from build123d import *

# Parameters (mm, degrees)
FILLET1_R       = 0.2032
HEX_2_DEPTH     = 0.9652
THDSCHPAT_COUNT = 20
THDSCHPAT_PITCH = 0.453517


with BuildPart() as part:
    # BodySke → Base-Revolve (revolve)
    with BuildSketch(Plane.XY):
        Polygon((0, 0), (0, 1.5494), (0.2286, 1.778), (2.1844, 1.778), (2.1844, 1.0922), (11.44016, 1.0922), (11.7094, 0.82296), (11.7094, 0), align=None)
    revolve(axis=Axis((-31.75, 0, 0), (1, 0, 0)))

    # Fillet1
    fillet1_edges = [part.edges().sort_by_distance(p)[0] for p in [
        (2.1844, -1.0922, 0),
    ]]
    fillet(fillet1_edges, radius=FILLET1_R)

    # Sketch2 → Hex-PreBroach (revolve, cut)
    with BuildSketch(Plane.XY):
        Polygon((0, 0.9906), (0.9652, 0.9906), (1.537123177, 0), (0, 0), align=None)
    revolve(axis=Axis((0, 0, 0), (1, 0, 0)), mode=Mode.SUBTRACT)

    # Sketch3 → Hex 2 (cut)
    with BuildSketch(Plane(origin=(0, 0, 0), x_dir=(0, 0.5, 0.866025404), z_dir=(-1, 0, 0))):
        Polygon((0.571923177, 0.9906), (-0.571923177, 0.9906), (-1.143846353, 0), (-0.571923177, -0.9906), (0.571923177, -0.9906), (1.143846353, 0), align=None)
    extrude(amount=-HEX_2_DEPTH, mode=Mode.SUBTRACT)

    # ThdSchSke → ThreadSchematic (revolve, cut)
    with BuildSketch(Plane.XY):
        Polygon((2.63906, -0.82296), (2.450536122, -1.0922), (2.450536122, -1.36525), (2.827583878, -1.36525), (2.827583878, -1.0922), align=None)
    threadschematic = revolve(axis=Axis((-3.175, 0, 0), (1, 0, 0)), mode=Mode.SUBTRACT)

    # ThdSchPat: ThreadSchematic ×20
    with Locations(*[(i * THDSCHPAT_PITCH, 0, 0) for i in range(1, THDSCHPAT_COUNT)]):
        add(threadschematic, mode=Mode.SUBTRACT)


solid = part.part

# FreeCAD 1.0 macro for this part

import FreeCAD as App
import Part
import Sketcher
from FreeCAD import Vector
Q = App.Units.Quantity


def edges_at(feature, points):
    """Names of the edges that pass closest to the given points."""
    edges = feature.Shape.Edges
    near = lambda p: min(range(len(edges)), key=lambda i: edges[i].distToShape(Part.Vertex(*p))[0])
    return sorted({f"Edge{near(p) + 1}" for p in points})

doc = App.newDocument("Part")
params = doc.addObject("Spreadsheet::Sheet", "Params")
for row, (alias, value) in enumerate([
    ("sketch1_width", "0.461 in"),
    ("sketch1_width2", "0.077 in"),
    ("sketch1_height", "0.061 in"),
    ("sketch1_height2", "0.027 in"),
    ("revolution_angle", "360 deg"),
    ("fillet_radius", "0.008 in"),
    ("sketch2_width", "0.038 in"),
    ("sketch2_height", "0.039 in"),
    ("groove_angle", "360 deg"),
    ("pocket1_length", "0.038 in"),
    ("groove2_angle", "360 deg"),
    ("linearpattern_pitch", "0.453517 mm"),
], start=1):
    params.set(f"A{row}", alias)
    params.set(f"B{row}", "=" + value)
    params.setAlias(f"B{row}", alias)

body = doc.addObject("PartDesign::Body", "Body")

# Sketch on XY plane
sketch1 = body.newObject("Sketcher::SketchObject", "Sketch")
sketch1.AttachmentSupport = (doc.getObject("XY_Plane"), [""])
sketch1.MapMode = "FlatFace"
sketch1.addGeometry(Part.LineSegment(Vector(0, 1.5494, 0), Vector(0, 0, 0)), False)
sketch1.addGeometry(Part.LineSegment(Vector(0, 0, 0), Vector(11.7094, 0, 0)), False)
sketch1.addGeometry(Part.LineSegment(Vector(11.7094, 0, 0), Vector(11.7094, 0.82296, 0)), False)
sketch1.addGeometry(Part.LineSegment(Vector(11.7094, 0.82296, 0), Vector(11.44016, 1.0922, 0)), False)
sketch1.addGeometry(Part.LineSegment(Vector(11.44016, 1.0922, 0), Vector(2.1844, 1.0922, 0)), False)
sketch1.addGeometry(Part.LineSegment(Vector(2.1844, 1.0922, 0), Vector(2.1844, 1.778, 0)), False)
sketch1.addGeometry(Part.LineSegment(Vector(2.1844, 1.778, 0), Vector(0.2286, 1.778, 0)), False)
sketch1.addGeometry(Part.LineSegment(Vector(0.2286, 1.778, 0), Vector(0, 1.5494, 0)), False)
sketch1.addConstraint(Sketcher.Constraint("Coincident", 0, 2, 1, 1))
sketch1.addConstraint(Sketcher.Constraint("Coincident", 1, 2, 2, 1))
sketch1.addConstraint(Sketcher.Constraint("Coincident", 2, 2, 3, 1))
sketch1.addConstraint(Sketcher.Constraint("Coincident", 3, 2, 4, 1))
sketch1.addConstraint(Sketcher.Constraint("Coincident", 4, 2, 5, 1))
sketch1.addConstraint(Sketcher.Constraint("Coincident", 5, 2, 6, 1))
sketch1.addConstraint(Sketcher.Constraint("Coincident", 6, 2, 7, 1))
sketch1.addConstraint(Sketcher.Constraint("Coincident", 7, 2, 0, 1))
sketch1.addConstraint(Sketcher.Constraint("Vertical", 0))
sketch1.addConstraint(Sketcher.Constraint("Horizontal", 1))
sketch1.addConstraint(Sketcher.Constraint("Vertical", 2))
sketch1.addConstraint(Sketcher.Constraint("Horizontal", 4))
sketch1.addConstraint(Sketcher.Constraint("Vertical", 5))
sketch1.addConstraint(Sketcher.Constraint("Horizontal", 6))
sketch1.addConstraint(Sketcher.Constraint("Coincident", 0, 2, -1, 1))
sketch1.addConstraint(Sketcher.Constraint("Perpendicular", 3, 7))
sketch1.addConstraint(Sketcher.Constraint("Angle", 3, Q("135 deg")))
sketch1.addConstraint(Sketcher.Constraint("DistanceX", 1, 1, 1, 2, Q("0.461 in")))
sketch1.addConstraint(Sketcher.Constraint("DistanceX", 6, 2, 6, 1, Q("0.077 in")))
sketch1.addConstraint(Sketcher.Constraint("DistanceY", 0, 2, 0, 1, Q("0.061 in")))
sketch1.addConstraint(Sketcher.Constraint("DistanceY", 5, 1, 5, 2, Q("0.027 in")))
sketch1.addConstraint(Sketcher.Constraint("DistanceY", -1, 1, 5, 2, Q("0.07 in")))
sketch1.addConstraint(Sketcher.Constraint("DistanceX", 4, 2, 4, 1, Q("0.3644 in")))
sketch1.setExpression("Constraints[17]", "Params.sketch1_width")
sketch1.setExpression("Constraints[18]", "Params.sketch1_width2")
sketch1.setExpression("Constraints[19]", "Params.sketch1_height")
sketch1.setExpression("Constraints[20]", "Params.sketch1_height2")
revolution = body.newObject("PartDesign::Revolution", "Revolution")
revolution.Profile = sketch1
revolution.ReferenceAxis = (sketch1, ["H_Axis"])
revolution.setExpression("Angle", "Params.revolution_angle")
doc.recompute()

fillet = body.newObject("PartDesign::Fillet", "Fillet")
fillet.Base = (revolution, edges_at(revolution, [(2.184, -1.092, 0)]))
fillet.setExpression("Radius", "Params.fillet_radius")

# Sketch on XY plane
sketch2 = body.newObject("Sketcher::SketchObject", "Sketch001")
sketch2.AttachmentSupport = (doc.getObject("XY_Plane"), [""])
sketch2.MapMode = "FlatFace"
sketch2.addGeometry(Part.LineSegment(Vector(0.9652, 0.9906, 0), Vector(0, 0.9906, 0)), False)
sketch2.addGeometry(Part.LineSegment(Vector(0, 0.9906, 0), Vector(0, 0, 0)), False)
sketch2.addGeometry(Part.LineSegment(Vector(0, 0, 0), Vector(1.537123, 0, 0)), False)
sketch2.addGeometry(Part.LineSegment(Vector(1.537123, 0, 0), Vector(0.9652, 0.9906, 0)), False)
sketch2.addConstraint(Sketcher.Constraint("Coincident", 0, 2, 1, 1))
sketch2.addConstraint(Sketcher.Constraint("Coincident", 1, 2, 2, 1))
sketch2.addConstraint(Sketcher.Constraint("Coincident", 2, 2, 3, 1))
sketch2.addConstraint(Sketcher.Constraint("Coincident", 3, 2, 0, 1))
sketch2.addConstraint(Sketcher.Constraint("Horizontal", 0))
sketch2.addConstraint(Sketcher.Constraint("Vertical", 1))
sketch2.addConstraint(Sketcher.Constraint("Horizontal", 2))
sketch2.addConstraint(Sketcher.Constraint("Coincident", 1, 2, -1, 1))
sketch2.addConstraint(Sketcher.Constraint("Angle", 3, Q("120 deg")))
sketch2.addConstraint(Sketcher.Constraint("DistanceX", 0, 2, 0, 1, Q("0.038 in")))
sketch2.addConstraint(Sketcher.Constraint("DistanceY", 1, 2, 1, 1, Q("0.039 in")))
sketch2.setExpression("Constraints[9]", "Params.sketch2_width")
sketch2.setExpression("Constraints[10]", "Params.sketch2_height")
groove = body.newObject("PartDesign::Groove", "Groove")
groove.Profile = sketch2
groove.ReferenceAxis = (sketch2, ["H_Axis"])
groove.setExpression("Angle", "Params.groove_angle")

# Sketch on YZ plane
sketch3 = body.newObject("Sketcher::SketchObject", "Sketch002")
sketch3.AttachmentSupport = (doc.getObject("YZ_Plane"), [""])
sketch3.MapMode = "FlatFace"
sketch3.addGeometry(Part.LineSegment(Vector(1.143846, 0, 0), Vector(0.571923, -0.9906, 0)), False)
sketch3.addGeometry(Part.LineSegment(Vector(0.571923, -0.9906, 0), Vector(-0.571923, -0.9906, 0)), False)
sketch3.addGeometry(Part.LineSegment(Vector(-0.571923, -0.9906, 0), Vector(-1.143846, 0, 0)), False)
sketch3.addGeometry(Part.LineSegment(Vector(-1.143846, 0, 0), Vector(-0.571923, 0.9906, 0)), False)
sketch3.addGeometry(Part.LineSegment(Vector(-0.571923, 0.9906, 0), Vector(0.571923, 0.9906, 0)), False)
sketch3.addGeometry(Part.LineSegment(Vector(0.571923, 0.9906, 0), Vector(1.143846, 0, 0)), False)
sketch3.addConstraint(Sketcher.Constraint("Coincident", 0, 2, 1, 1))
sketch3.addConstraint(Sketcher.Constraint("Coincident", 1, 2, 2, 1))
sketch3.addConstraint(Sketcher.Constraint("Coincident", 2, 2, 3, 1))
sketch3.addConstraint(Sketcher.Constraint("Coincident", 3, 2, 4, 1))
sketch3.addConstraint(Sketcher.Constraint("Coincident", 4, 2, 5, 1))
sketch3.addConstraint(Sketcher.Constraint("Coincident", 5, 2, 0, 1))
sketch3.addConstraint(Sketcher.Constraint("Horizontal", 1))
sketch3.addConstraint(Sketcher.Constraint("Horizontal", 4))
sketch3.addConstraint(Sketcher.Constraint("Symmetric", 0, 2, 3, 2, -1, 1))
sketch3.addConstraint(Sketcher.Constraint("Symmetric", 2, 2, 5, 2, -1, 1))
sketch3.addConstraint(Sketcher.Constraint("PointOnObject", 2, 2, -1))
sketch3.addConstraint(Sketcher.Constraint("Parallel", 2, 5))
sketch3.addConstraint(Sketcher.Constraint("Vertical", 1, 2, 3, 2))
sketch3.addConstraint(Sketcher.Constraint("Angle", 0, Q("-120 deg")))
sketch3.addConstraint(Sketcher.Constraint("DistanceY", 0, 2, -1, 1, Q("0.039 in")))
sketch3.addConstraint(Sketcher.Constraint("DistanceX", 1, 2, 1, 1, Q("1.143846 mm")))
pocket1 = body.newObject("PartDesign::Pocket", "Pocket")
pocket1.Profile = sketch3
pocket1.setExpression("Length", "Params.pocket1_length")
pocket1.Reversed = True

# Sketch on XY plane
sketch4 = body.newObject("Sketcher::SketchObject", "Sketch003")
sketch4.AttachmentSupport = (doc.getObject("XY_Plane"), [""])
sketch4.MapMode = "FlatFace"
sketch4.addGeometry(Part.LineSegment(Vector(2.63906, -0.82296, 0), Vector(2.450536, -1.0922, 0)), False)
sketch4.addGeometry(Part.LineSegment(Vector(2.450536, -1.0922, 0), Vector(2.450536, -1.36525, 0)), False)
sketch4.addGeometry(Part.LineSegment(Vector(2.450536, -1.36525, 0), Vector(2.827584, -1.36525, 0)), False)
sketch4.addGeometry(Part.LineSegment(Vector(2.827584, -1.36525, 0), Vector(2.827584, -1.0922, 0)), False)
sketch4.addGeometry(Part.LineSegment(Vector(2.827584, -1.0922, 0), Vector(2.63906, -0.82296, 0)), False)
sketch4.addConstraint(Sketcher.Constraint("Coincident", 0, 2, 1, 1))
sketch4.addConstraint(Sketcher.Constraint("Coincident", 1, 2, 2, 1))
sketch4.addConstraint(Sketcher.Constraint("Coincident", 2, 2, 3, 1))
sketch4.addConstraint(Sketcher.Constraint("Coincident", 3, 2, 4, 1))
sketch4.addConstraint(Sketcher.Constraint("Coincident", 4, 2, 0, 1))
sketch4.addConstraint(Sketcher.Constraint("Vertical", 1))
sketch4.addConstraint(Sketcher.Constraint("Horizontal", 2))
sketch4.addConstraint(Sketcher.Constraint("Vertical", 3))
sketch4.addConstraint(Sketcher.Constraint("Horizontal", 0, 2, 3, 2))
sketch4.addConstraint(Sketcher.Constraint("Equal", 0, 4))
sketch4.addConstraint(Sketcher.Constraint("Angle", 0, Q("-125 deg")))
sketch4.addConstraint(Sketcher.Constraint("DistanceY", 0, 2, -1, 1, Q("0.043 in")))
sketch4.addConstraint(Sketcher.Constraint("DistanceX", -1, 1, 4, 2, Q("0.1039 in")))
sketch4.addConstraint(Sketcher.Constraint("DistanceY", 4, 2, -1, 1, Q("0.0324 in")))
sketch4.addConstraint(Sketcher.Constraint("DistanceY", 1, 2, 1, 1, Q("0.27305 mm")))
groove2 = body.newObject("PartDesign::Groove", "Groove001")
groove2.Profile = sketch4
groove2.ReferenceAxis = (sketch4, ["H_Axis"])
groove2.setExpression("Angle", "Params.groove2_angle")
doc.recompute()

linearpattern = body.newObject("PartDesign::LinearPattern", "LinearPattern")
linearpattern.Originals = [groove2]
linearpattern.Direction = (doc.getObject("X_Axis"), [""])
linearpattern.Mode = "offset"
linearpattern.setExpression("Offset", "Params.linearpattern_pitch")
linearpattern.Occurrences = 20
body.Tip = linearpattern

doc.recompute()
